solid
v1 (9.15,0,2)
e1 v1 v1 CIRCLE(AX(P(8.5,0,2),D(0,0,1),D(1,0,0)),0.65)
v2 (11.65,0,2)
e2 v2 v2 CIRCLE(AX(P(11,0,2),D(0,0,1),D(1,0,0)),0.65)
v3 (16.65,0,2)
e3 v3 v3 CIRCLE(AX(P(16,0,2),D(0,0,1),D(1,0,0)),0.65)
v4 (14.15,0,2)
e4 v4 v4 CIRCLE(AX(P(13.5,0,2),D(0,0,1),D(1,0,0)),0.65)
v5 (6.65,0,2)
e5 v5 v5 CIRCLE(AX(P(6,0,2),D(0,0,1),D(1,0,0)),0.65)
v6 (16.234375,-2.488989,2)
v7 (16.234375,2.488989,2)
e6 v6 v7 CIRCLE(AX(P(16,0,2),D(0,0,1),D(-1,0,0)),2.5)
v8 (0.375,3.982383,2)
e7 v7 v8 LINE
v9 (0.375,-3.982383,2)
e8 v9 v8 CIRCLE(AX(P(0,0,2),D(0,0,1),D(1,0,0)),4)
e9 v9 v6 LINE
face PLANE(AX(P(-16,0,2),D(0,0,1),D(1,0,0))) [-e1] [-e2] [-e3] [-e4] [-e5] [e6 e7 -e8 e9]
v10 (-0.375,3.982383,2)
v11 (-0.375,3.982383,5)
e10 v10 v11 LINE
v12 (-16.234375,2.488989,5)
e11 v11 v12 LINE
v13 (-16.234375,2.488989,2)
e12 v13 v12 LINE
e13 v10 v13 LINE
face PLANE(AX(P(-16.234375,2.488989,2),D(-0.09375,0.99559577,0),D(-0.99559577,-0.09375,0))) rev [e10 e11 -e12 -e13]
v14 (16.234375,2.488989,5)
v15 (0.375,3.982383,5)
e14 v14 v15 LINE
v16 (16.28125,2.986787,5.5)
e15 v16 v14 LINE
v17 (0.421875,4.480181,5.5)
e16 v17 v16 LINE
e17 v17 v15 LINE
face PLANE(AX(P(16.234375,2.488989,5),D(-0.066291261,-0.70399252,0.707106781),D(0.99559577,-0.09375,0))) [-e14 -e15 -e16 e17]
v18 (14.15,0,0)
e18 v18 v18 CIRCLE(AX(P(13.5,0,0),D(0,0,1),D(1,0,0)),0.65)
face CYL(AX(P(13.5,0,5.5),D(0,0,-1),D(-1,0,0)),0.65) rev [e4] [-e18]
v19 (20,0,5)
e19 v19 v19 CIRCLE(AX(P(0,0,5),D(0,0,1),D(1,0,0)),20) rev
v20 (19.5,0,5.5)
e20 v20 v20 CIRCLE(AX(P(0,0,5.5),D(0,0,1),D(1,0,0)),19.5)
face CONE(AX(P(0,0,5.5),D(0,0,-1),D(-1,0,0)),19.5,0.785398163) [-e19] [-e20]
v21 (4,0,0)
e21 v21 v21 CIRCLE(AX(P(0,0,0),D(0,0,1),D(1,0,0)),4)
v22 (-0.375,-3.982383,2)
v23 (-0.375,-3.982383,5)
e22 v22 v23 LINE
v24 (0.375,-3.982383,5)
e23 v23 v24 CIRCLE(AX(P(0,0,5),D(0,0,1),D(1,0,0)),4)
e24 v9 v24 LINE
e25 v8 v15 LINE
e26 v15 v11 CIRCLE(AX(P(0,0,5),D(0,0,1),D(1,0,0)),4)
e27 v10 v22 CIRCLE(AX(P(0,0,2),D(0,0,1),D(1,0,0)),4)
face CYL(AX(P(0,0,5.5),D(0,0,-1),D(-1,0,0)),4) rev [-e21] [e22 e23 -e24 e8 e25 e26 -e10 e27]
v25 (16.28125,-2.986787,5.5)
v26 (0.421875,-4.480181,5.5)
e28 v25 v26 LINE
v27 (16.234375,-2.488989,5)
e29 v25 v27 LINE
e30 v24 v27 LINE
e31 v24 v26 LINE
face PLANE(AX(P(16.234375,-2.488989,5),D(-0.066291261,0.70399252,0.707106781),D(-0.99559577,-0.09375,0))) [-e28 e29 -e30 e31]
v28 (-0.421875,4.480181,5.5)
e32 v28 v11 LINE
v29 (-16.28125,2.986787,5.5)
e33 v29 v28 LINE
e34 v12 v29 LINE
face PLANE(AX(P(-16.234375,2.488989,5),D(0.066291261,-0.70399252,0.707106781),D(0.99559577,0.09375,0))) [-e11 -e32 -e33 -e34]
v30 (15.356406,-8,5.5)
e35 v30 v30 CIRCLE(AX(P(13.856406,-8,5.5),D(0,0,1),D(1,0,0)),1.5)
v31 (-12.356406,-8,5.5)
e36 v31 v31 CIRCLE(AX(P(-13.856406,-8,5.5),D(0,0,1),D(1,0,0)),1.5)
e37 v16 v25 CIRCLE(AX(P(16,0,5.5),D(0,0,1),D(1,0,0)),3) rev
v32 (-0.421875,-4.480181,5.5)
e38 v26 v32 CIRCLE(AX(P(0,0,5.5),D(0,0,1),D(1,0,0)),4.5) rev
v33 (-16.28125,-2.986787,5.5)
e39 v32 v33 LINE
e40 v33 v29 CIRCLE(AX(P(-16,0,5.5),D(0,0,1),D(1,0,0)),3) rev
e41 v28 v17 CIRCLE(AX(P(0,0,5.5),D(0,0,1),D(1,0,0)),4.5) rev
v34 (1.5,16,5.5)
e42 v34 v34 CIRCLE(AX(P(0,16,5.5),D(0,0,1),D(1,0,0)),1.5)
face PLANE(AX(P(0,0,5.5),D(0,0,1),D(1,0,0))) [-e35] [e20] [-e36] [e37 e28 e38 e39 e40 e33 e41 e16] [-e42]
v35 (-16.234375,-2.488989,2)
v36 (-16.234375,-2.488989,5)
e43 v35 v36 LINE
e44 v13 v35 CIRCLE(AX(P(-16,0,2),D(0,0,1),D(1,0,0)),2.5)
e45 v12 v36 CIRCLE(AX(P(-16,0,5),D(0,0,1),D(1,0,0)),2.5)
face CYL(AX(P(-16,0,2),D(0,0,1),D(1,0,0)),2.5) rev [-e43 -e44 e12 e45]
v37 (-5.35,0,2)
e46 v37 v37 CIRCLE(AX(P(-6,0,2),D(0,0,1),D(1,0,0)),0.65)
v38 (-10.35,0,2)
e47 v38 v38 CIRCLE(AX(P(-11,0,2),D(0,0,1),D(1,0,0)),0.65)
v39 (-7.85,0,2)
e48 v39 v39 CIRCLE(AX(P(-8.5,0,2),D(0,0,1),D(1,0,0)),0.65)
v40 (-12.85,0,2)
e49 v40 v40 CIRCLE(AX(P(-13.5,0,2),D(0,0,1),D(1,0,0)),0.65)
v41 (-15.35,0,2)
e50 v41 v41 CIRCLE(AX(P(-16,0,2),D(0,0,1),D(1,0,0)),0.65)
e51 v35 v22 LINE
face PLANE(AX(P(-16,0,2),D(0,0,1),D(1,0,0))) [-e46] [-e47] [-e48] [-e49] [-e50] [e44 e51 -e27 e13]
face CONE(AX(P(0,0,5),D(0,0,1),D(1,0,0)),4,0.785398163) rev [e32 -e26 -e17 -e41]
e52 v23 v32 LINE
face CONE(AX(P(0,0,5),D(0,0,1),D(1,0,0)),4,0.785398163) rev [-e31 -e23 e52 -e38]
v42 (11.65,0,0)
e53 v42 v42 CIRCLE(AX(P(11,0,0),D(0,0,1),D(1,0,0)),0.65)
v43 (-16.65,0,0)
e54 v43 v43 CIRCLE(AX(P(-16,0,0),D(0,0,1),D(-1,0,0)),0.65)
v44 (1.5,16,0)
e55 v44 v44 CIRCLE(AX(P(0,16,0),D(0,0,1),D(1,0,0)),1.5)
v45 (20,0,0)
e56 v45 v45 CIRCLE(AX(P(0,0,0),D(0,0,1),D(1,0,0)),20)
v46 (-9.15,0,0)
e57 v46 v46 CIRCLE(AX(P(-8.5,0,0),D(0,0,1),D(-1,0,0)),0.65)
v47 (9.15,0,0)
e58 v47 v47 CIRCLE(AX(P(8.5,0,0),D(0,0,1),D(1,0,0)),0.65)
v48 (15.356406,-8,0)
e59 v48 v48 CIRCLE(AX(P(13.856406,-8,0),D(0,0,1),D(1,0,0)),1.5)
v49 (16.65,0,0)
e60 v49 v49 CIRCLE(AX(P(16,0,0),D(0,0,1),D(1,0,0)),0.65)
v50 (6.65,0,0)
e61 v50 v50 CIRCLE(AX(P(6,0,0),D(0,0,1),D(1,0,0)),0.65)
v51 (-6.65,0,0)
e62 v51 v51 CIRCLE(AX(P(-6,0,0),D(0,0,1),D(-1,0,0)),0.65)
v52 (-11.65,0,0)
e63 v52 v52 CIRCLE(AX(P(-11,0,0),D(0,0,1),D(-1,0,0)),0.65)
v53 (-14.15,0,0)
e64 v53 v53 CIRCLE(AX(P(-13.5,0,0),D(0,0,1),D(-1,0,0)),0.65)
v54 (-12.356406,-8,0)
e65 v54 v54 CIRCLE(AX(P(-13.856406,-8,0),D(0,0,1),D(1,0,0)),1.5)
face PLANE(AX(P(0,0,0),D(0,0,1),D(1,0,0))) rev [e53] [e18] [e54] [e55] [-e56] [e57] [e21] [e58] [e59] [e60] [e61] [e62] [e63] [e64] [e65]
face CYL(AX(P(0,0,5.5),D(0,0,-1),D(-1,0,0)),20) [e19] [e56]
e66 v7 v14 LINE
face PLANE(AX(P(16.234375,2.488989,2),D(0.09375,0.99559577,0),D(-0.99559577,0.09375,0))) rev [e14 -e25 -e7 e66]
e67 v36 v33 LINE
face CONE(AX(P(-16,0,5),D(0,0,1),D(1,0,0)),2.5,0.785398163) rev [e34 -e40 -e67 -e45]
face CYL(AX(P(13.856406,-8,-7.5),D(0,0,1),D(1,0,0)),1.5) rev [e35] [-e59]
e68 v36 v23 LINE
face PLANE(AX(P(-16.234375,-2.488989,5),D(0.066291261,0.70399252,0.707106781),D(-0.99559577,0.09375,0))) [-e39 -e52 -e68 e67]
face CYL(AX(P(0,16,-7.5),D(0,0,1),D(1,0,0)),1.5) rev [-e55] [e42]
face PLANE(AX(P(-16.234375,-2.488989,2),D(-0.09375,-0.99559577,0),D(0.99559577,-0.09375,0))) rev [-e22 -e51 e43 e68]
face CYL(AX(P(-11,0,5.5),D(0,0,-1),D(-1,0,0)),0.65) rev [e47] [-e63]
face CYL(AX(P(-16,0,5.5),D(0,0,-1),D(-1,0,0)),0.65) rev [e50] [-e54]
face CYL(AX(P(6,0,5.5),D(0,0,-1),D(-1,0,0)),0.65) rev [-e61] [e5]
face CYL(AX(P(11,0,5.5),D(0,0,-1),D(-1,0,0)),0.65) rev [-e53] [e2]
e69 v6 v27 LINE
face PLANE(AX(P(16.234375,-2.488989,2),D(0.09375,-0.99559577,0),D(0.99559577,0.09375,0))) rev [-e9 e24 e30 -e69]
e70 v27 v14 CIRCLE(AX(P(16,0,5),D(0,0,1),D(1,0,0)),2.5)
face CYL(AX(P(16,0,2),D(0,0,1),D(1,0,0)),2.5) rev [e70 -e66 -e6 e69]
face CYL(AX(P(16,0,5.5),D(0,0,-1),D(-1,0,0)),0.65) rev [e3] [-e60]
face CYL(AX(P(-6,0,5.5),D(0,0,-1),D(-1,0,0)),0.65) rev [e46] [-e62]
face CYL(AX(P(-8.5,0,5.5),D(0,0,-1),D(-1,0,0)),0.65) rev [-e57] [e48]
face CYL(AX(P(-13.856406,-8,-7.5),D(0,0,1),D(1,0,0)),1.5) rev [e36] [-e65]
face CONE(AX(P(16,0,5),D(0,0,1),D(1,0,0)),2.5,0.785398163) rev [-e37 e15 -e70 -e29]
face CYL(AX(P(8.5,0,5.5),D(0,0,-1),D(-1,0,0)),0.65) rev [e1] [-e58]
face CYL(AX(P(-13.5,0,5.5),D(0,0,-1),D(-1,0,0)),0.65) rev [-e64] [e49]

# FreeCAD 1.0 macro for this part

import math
import FreeCAD as App
import Part
import Sketcher
from FreeCAD import Vector
Q = App.Units.Quantity


def edges_at(feature, points):
    """Names of the edges that pass closest to the given points."""
    edges = feature.Shape.Edges
    near = lambda p: min(range(len(edges)), key=lambda i: edges[i].distToShape(Part.Vertex(*p))[0])
    return sorted({f"Edge{near(p) + 1}" for p in points})

doc = App.newDocument("Part")
body = doc.addObject("PartDesign::Body", "Body")

# Sketch on XY plane
sketch1 = body.newObject("Sketcher::SketchObject", "Sketch")
sketch1.AttachmentSupport = (doc.getObject("XY_Plane"), [""])
sketch1.MapMode = "FlatFace"
sketch1.addGeometry(Part.Circle(Vector(0, 0, 0), Vector(0, 0, 1), 20), False)
sketch1.addGeometry(Part.Circle(Vector(-16, 0, 0), Vector(0, 0, 1), 0.7), False)
sketch1.addGeometry(Part.Circle(Vector(-13.5, 0, 0), Vector(0, 0, 1), 0.7), False)
sketch1.addGeometry(Part.Circle(Vector(-11, 0, 0), Vector(0, 0, 1), 0.7), False)
sketch1.addGeometry(Part.Circle(Vector(-8.5, 0, 0), Vector(0, 0, 1), 0.7), False)
sketch1.addGeometry(Part.Circle(Vector(-6, 0, 0), Vector(0, 0, 1), 0.7), False)
sketch1.addGeometry(Part.Circle(Vector(0, 0, 0), Vector(0, 0, 1), 4), False)
sketch1.addGeometry(Part.Circle(Vector(6, 0, 0), Vector(0, 0, 1), 0.7), False)
sketch1.addGeometry(Part.Circle(Vector(8.5, 0, 0), Vector(0, 0, 1), 0.7), False)
sketch1.addGeometry(Part.Circle(Vector(11, 0, 0), Vector(0, 0, 1), 0.7), False)
sketch1.addGeometry(Part.Circle(Vector(13.5, 0, 0), Vector(0, 0, 1), 0.7), False)
sketch1.addGeometry(Part.Circle(Vector(16, 0, 0), Vector(0, 0, 1), 0.7), False)
sketch1.addConstraint(Sketcher.Constraint("Coincident", 0, 3, -1, 1))
sketch1.addConstraint(Sketcher.Constraint("Coincident", 6, 3, -1, 1))
sketch1.addConstraint(Sketcher.Constraint("Equal", 1, 2))
sketch1.addConstraint(Sketcher.Constraint("Equal", 2, 3))
sketch1.addConstraint(Sketcher.Constraint("Equal", 3, 4))
sketch1.addConstraint(Sketcher.Constraint("Equal", 4, 5))
sketch1.addConstraint(Sketcher.Constraint("Equal", 5, 7))
sketch1.addConstraint(Sketcher.Constraint("Equal", 7, 8))
sketch1.addConstraint(Sketcher.Constraint("Equal", 8, 9))
sketch1.addConstraint(Sketcher.Constraint("Equal", 9, 10))
sketch1.addConstraint(Sketcher.Constraint("Equal", 10, 11))
sketch1.addConstraint(Sketcher.Constraint("Symmetric", 5, 3, 7, 3, -1, 1))
sketch1.addConstraint(Sketcher.Constraint("Symmetric", 4, 3, 8, 3, -1, 1))
sketch1.addConstraint(Sketcher.Constraint("Symmetric", 3, 3, 9, 3, -1, 1))
sketch1.addConstraint(Sketcher.Constraint("Symmetric", 2, 3, 10, 3, -1, 1))
sketch1.addConstraint(Sketcher.Constraint("Symmetric", 1, 3, 11, 3, -1, 1))
sketch1.addConstraint(Sketcher.Constraint("PointOnObject", 1, 3, -1))
sketch1.addConstraint(Sketcher.Constraint("PointOnObject", 2, 3, -1))
sketch1.addConstraint(Sketcher.Constraint("PointOnObject", 3, 3, -1))
sketch1.addConstraint(Sketcher.Constraint("PointOnObject", 4, 3, -1))
sketch1.addConstraint(Sketcher.Constraint("PointOnObject", 5, 3, -1))
sketch1.addConstraint(Sketcher.Constraint("Diameter", 0, Q("40 mm")))
sketch1.addConstraint(Sketcher.Constraint("Diameter", 6, Q("8 mm")))
sketch1.addConstraint(Sketcher.Constraint("Diameter", 1, Q("1.3 mm")))
sketch1.addConstraint(Sketcher.Constraint("DistanceX", 1, 3, -1, 1, Q("16 mm")))
sketch1.addConstraint(Sketcher.Constraint("DistanceX", 3, 3, -1, 1, Q("11 mm")))
sketch1.addConstraint(Sketcher.Constraint("DistanceX", 5, 3, -1, 1, Q("6 mm")))
sketch1.addConstraint(Sketcher.Constraint("DistanceX", 2, 3, 4, 3, Q("5 mm")))
sketch1.addConstraint(Sketcher.Constraint("DistanceX", 4, 3, 8, 3, Q("17 mm")))
pad1 = body.newObject("PartDesign::Pad", "Pad")
pad1.Profile = sketch1
pad1.Length = 5.5

# Sketch on XY plane
sketch2 = body.newObject("Sketcher::SketchObject", "Sketch001")
sketch2.AttachmentSupport = (doc.getObject("XY_Plane"), [""])
sketch2.MapMode = "FlatFace"
sketch2.AttachmentOffset = App.Placement(Vector(0, 0, 2), App.Rotation())
sketch2.addGeometry(Part.LineSegment(Vector(-0.4, 4, 0), Vector(-16.2, 2.5, 0)), False)
sketch2.addGeometry(Part.ArcOfCircle(Part.Circle(Vector(-16, 0, 0), Vector(0, 0, 1), 2.5), math.radians(95), math.radians(265)), False)
sketch2.addGeometry(Part.LineSegment(Vector(-16.2, -2.5, 0), Vector(-0.4, -4, 0)), False)
sketch2.addGeometry(Part.ArcOfCircle(Part.Circle(Vector(0, 0, 0), Vector(0, 0, 1), 4), math.radians(-95.38), math.radians(-84.62)), False)
sketch2.addGeometry(Part.LineSegment(Vector(0.4, -4, 0), Vector(16.2, -2.5, 0)), False)
sketch2.addGeometry(Part.ArcOfCircle(Part.Circle(Vector(16, 0, 0), Vector(0, 0, 1), 2.5), math.radians(-85), math.radians(85)), False)
sketch2.addGeometry(Part.LineSegment(Vector(16.2, 2.5, 0), Vector(0.4, 4, 0)), False)
sketch2.addGeometry(Part.ArcOfCircle(Part.Circle(Vector(0, 0, 0), Vector(0, 0, 1), 4), math.radians(84.62), math.radians(95.38)), False)
sketch2.addConstraint(Sketcher.Constraint("Tangent", 0, 2, 1, 1))
sketch2.addConstraint(Sketcher.Constraint("Tangent", 1, 2, 2, 1))
sketch2.addConstraint(Sketcher.Constraint("Tangent", 2, 2, 3, 1))
sketch2.addConstraint(Sketcher.Constraint("Tangent", 3, 2, 4, 1))
sketch2.addConstraint(Sketcher.Constraint("Tangent", 4, 2, 5, 1))
sketch2.addConstraint(Sketcher.Constraint("Tangent", 5, 2, 6, 1))
sketch2.addConstraint(Sketcher.Constraint("Tangent", 6, 2, 7, 1))
sketch2.addConstraint(Sketcher.Constraint("Tangent", 7, 2, 0, 1))
sketch2.addConstraint(Sketcher.Constraint("Coincident", 3, 3, -1, 1))
sketch2.addConstraint(Sketcher.Constraint("Coincident", 7, 3, -1, 1))
sketch2.addConstraint(Sketcher.Constraint("Equal", 1, 5))
sketch2.addConstraint(Sketcher.Constraint("Equal", 3, 7))
sketch2.addConstraint(Sketcher.Constraint("Symmetric", 1, 3, 5, 3, -1, 1))
sketch2.addConstraint(Sketcher.Constraint("PointOnObject", 1, 3, -1))
sketch2.addConstraint(Sketcher.Constraint("Radius", 3, Q("4 mm")))
sketch2.addConstraint(Sketcher.Constraint("Radius", 1, Q("2.5 mm")))
sketch2.addConstraint(Sketcher.Constraint("DistanceX", 1, 3, -1, 1, Q("16 mm")))
pocket1 = body.newObject("PartDesign::Pocket", "Pocket")
pocket1.Profile = sketch2
pocket1.Length = 3.5
pocket1.Reversed = True

# Sketch on XY plane
sketch3 = body.newObject("Sketcher::SketchObject", "Sketch002")
sketch3.AttachmentSupport = (doc.getObject("XY_Plane"), [""])
sketch3.MapMode = "FlatFace"
sketch3.AttachmentOffset = App.Placement(Vector(0, 0, 5.5), App.Rotation())
sketch3.addGeometry(Part.Circle(Vector(0, 16, 0), Vector(0, 0, 1), 1.5), False)
sketch3.addGeometry(Part.Circle(Vector(13.9, -8, 0), Vector(0, 0, 1), 1.5), False)
sketch3.addGeometry(Part.Circle(Vector(-13.9, -8, 0), Vector(0, 0, 1), 1.5), False)
sketch3.addConstraint(Sketcher.Constraint("Equal", 0, 1))
sketch3.addConstraint(Sketcher.Constraint("Equal", 1, 2))
sketch3.addConstraint(Sketcher.Constraint("Symmetric", 1, 3, 2, 3, -2))
sketch3.addConstraint(Sketcher.Constraint("PointOnObject", 0, 3, -2))
sketch3.addConstraint(Sketcher.Constraint("Diameter", 0, Q("3 mm")))
sketch3.addConstraint(Sketcher.Constraint("DistanceY", -1, 1, 0, 3, Q("16 mm")))
sketch3.addConstraint(Sketcher.Constraint("DistanceY", 1, 3, -1, 1, Q("8 mm")))
sketch3.addConstraint(Sketcher.Constraint("DistanceX", -1, 1, 1, 3, Q("13.856406 mm")))
pocket2 = body.newObject("PartDesign::Pocket", "Pocket001")
pocket2.Profile = sketch3
pocket2.Length = 13
doc.recompute()

chamfer = body.newObject("PartDesign::Chamfer", "Chamfer")
chamfer.Base = (pocket2, edges_at(pocket2, [(-20, 0, 5.5)]))
chamfer.Size = 0.5
doc.recompute()

chamfer2 = body.newObject("PartDesign::Chamfer", "Chamfer001")
chamfer2.Base = (chamfer, edges_at(chamfer, [
    (0, 4, 5.5),
    (0, -4, 5.5),
    (-8.305, 3.236, 5.5),
    (-18.5, 0, 5.5),
    (-8.305, -3.236, 5.5),
    (8.305, -3.236, 5.5),
    (18.5, 0, 5.5),
    (8.305, 3.236, 5.5),
]))
chamfer2.Size = 0.5

doc.recompute()
